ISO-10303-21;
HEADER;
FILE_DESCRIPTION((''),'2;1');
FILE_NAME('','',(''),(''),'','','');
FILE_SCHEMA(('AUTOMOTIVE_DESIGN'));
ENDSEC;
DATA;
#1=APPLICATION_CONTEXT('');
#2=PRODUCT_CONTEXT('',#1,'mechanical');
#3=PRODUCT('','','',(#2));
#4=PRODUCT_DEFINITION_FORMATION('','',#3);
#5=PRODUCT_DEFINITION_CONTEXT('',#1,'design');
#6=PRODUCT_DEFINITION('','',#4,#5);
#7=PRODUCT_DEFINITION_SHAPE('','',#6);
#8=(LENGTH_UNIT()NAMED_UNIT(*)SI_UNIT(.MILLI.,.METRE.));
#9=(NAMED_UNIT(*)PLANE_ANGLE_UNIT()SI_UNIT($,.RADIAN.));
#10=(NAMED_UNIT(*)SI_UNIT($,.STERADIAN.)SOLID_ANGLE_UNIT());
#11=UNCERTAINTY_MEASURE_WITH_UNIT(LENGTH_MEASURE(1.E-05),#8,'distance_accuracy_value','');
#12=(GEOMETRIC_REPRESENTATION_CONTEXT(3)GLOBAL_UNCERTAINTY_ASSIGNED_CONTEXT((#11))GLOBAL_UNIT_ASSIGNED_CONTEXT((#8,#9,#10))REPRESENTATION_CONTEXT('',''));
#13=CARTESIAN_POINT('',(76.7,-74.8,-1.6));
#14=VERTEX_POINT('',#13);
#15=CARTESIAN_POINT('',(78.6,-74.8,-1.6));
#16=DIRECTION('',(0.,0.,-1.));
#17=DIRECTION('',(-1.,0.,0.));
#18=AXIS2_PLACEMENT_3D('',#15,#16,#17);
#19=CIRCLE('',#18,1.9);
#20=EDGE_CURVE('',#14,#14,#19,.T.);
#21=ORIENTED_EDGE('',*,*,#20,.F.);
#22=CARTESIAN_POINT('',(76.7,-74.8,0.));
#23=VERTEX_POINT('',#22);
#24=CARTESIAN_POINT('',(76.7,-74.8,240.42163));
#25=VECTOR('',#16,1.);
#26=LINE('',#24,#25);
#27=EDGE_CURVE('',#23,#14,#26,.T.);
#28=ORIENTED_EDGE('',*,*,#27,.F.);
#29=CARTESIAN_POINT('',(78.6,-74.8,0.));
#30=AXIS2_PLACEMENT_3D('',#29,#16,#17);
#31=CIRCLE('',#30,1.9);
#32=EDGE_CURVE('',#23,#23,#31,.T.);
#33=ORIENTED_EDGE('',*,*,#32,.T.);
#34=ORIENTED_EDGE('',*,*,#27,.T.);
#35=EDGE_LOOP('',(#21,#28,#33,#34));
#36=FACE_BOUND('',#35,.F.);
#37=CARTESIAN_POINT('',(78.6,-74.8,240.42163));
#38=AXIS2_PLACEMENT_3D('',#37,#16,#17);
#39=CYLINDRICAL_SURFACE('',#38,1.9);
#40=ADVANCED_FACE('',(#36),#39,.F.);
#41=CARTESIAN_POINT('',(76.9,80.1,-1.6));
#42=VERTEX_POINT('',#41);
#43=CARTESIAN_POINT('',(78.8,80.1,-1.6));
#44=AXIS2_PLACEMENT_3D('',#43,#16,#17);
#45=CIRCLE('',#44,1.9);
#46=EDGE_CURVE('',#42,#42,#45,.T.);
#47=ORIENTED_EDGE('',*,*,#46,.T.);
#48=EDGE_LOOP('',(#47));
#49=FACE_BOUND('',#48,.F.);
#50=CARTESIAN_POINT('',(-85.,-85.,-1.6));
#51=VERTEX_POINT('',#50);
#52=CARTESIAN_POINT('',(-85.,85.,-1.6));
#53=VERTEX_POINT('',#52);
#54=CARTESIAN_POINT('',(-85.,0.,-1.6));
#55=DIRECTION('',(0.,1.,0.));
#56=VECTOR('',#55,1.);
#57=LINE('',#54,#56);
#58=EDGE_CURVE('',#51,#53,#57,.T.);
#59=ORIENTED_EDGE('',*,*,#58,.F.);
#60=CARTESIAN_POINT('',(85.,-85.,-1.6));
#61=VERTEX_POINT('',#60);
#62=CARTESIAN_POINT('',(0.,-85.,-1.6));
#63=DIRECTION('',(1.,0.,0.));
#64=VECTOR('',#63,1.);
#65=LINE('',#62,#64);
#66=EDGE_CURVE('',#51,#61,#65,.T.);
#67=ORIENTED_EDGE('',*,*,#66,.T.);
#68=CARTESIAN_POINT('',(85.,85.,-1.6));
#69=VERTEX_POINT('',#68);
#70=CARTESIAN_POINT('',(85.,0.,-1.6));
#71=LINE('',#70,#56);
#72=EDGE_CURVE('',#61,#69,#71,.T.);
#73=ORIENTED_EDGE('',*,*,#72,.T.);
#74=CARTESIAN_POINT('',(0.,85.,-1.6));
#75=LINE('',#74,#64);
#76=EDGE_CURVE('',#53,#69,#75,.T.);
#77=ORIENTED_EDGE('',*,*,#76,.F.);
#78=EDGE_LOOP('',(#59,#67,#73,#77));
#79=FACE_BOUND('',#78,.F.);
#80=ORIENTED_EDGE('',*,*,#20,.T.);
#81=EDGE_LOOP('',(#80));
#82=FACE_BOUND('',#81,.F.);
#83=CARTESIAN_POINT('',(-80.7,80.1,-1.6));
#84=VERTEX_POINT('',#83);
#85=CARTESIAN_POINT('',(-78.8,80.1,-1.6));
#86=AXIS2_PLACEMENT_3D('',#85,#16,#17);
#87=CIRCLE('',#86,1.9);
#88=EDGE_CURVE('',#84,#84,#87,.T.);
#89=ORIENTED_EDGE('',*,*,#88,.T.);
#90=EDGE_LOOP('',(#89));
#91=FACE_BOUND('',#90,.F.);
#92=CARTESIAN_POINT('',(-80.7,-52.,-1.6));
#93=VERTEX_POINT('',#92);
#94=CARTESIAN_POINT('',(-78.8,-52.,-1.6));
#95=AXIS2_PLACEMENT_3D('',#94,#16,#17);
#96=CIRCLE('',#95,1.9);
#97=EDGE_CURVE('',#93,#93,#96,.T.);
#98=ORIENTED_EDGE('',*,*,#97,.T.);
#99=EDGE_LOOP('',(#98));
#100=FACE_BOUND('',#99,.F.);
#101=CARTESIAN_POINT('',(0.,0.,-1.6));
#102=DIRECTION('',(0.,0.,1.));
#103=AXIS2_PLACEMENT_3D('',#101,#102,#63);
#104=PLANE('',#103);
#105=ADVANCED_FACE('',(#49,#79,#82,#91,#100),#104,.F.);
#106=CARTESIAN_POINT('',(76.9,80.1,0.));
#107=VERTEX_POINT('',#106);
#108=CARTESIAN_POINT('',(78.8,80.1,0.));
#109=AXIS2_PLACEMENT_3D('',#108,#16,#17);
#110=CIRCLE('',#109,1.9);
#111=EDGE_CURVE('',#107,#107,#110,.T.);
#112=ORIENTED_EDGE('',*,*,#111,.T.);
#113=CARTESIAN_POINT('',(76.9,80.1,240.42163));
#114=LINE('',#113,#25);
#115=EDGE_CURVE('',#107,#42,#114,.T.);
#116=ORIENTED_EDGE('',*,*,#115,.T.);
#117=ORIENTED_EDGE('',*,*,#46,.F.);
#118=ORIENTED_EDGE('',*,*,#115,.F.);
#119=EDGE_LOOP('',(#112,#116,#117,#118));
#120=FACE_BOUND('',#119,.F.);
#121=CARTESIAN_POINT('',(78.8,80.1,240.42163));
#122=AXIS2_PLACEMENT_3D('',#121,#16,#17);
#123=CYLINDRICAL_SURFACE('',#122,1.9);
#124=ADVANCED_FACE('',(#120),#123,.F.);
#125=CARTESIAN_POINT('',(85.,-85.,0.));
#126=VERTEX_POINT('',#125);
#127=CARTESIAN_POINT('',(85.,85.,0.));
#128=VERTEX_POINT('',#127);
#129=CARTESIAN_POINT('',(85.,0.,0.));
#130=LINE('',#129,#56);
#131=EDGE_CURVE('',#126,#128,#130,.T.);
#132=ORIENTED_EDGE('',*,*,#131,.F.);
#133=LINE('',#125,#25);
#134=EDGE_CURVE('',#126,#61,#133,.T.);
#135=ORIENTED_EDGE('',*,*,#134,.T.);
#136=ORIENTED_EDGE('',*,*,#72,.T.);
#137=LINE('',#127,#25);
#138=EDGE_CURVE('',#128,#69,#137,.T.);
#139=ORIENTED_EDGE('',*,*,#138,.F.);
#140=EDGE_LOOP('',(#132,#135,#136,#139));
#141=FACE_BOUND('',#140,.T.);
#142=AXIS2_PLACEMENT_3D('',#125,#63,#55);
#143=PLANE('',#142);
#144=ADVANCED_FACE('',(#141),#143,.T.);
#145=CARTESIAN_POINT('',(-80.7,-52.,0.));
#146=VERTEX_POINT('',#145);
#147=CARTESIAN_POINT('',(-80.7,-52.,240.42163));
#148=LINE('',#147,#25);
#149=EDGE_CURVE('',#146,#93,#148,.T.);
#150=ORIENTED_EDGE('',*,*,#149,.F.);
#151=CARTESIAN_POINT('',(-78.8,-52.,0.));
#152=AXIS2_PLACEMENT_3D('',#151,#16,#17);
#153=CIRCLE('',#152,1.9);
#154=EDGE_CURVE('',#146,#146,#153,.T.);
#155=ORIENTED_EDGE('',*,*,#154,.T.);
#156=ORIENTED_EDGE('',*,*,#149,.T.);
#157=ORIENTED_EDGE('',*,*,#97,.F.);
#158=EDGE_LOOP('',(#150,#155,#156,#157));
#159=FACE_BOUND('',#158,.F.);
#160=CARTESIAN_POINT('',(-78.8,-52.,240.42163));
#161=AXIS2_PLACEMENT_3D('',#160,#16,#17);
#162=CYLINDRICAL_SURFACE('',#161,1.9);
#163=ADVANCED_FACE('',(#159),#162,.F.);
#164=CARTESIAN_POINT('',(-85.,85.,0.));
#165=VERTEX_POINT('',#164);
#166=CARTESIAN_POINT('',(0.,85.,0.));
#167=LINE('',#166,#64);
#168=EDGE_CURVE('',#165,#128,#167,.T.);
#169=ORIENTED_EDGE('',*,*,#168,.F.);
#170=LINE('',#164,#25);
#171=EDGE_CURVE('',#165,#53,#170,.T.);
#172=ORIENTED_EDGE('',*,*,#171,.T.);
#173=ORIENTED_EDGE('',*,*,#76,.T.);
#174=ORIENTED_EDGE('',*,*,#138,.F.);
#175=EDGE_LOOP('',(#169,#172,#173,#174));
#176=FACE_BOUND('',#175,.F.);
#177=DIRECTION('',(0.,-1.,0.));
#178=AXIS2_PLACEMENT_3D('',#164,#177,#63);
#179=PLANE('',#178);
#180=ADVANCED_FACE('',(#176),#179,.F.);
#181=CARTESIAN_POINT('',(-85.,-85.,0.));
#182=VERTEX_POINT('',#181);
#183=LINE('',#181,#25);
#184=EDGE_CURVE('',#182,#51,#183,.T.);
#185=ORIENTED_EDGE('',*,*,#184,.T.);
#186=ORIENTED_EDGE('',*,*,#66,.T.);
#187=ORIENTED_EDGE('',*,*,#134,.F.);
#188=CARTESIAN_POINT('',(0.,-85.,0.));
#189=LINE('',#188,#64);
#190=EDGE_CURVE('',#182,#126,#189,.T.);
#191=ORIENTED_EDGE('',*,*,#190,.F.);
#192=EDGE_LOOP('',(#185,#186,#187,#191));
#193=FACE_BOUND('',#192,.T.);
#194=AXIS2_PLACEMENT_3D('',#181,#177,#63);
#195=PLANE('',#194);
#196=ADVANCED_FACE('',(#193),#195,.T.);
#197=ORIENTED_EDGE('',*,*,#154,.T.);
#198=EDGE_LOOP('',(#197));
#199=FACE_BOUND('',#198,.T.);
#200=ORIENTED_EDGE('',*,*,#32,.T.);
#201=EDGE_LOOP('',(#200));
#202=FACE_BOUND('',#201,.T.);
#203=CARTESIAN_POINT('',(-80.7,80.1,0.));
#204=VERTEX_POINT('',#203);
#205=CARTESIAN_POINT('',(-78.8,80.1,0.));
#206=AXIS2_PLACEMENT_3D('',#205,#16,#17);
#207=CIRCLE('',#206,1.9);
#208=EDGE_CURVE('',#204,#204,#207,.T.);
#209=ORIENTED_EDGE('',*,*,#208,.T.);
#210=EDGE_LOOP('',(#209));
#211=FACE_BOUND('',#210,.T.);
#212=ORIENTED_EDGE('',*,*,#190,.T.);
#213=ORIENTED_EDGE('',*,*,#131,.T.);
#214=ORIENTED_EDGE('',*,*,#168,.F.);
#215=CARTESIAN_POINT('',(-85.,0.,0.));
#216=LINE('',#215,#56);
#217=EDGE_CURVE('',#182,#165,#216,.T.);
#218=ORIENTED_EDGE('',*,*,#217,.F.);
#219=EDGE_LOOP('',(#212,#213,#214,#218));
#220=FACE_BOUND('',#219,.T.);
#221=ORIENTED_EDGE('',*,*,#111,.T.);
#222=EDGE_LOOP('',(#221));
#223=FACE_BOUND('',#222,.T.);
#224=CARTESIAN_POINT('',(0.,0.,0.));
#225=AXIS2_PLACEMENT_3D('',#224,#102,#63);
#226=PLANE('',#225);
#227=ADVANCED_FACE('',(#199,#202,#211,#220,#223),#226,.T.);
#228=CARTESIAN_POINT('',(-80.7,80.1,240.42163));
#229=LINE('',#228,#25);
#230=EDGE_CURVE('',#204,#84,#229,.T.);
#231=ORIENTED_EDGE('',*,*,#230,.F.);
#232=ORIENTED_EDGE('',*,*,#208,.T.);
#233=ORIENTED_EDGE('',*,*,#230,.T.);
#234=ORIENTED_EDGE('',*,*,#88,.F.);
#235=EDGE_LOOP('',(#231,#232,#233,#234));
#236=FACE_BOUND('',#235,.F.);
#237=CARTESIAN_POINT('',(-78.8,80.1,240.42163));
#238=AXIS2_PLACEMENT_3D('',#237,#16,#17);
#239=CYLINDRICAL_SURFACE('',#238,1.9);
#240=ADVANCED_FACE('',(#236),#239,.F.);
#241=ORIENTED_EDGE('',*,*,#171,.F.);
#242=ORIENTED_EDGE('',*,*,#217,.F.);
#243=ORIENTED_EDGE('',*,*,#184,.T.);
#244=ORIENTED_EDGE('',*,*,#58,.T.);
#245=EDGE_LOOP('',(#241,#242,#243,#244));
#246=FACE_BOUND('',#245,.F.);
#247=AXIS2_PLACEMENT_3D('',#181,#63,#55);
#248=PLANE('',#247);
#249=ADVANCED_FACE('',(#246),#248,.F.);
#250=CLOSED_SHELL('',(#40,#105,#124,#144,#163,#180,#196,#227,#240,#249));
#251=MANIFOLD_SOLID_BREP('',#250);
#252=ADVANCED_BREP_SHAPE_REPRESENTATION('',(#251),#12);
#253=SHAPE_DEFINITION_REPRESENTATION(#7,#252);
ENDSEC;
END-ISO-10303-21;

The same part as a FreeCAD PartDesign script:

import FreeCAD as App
import Part
import Sketcher

V = App.Vector
Q = App.Units.Quantity

doc = App.newDocument("Part")
body = doc.addObject("PartDesign::Body", "Body")

# Sketch on XY plane
sketch1 = body.newObject("Sketcher::SketchObject", "Sketch")
sketch1.AttachmentSupport = (doc.getObject("XY_Plane"), [""])
sketch1.MapMode = "FlatFace"
sketch1.addGeometry([
    Part.LineSegment(V(-85, 85, 0), V(-85, -85, 0)),
    Part.LineSegment(V(-85, -85, 0), V(85, -85, 0)),
    Part.LineSegment(V(85, -85, 0), V(85, 85, 0)),
    Part.LineSegment(V(85, 85, 0), V(-85, 85, 0)),
], False)
sketch1.addConstraint([
    Sketcher.Constraint("Coincident", 0, 2, 1, 1),
    Sketcher.Constraint("Coincident", 1, 2, 2, 1),
    Sketcher.Constraint("Coincident", 2, 2, 3, 1),
    Sketcher.Constraint("Coincident", 3, 2, 0, 1),
    Sketcher.Constraint("Vertical", 0),
    Sketcher.Constraint("Horizontal", 1),
    Sketcher.Constraint("Vertical", 2),
    Sketcher.Constraint("Horizontal", 3),
    Sketcher.Constraint("Symmetric", 0, 2, 2, 2, -1, 1),
    Sketcher.Constraint("Equal", 3, 0),
    Sketcher.Constraint("DistanceX", 1, 1, 1, 2, Q("170 mm")),
])
pad1 = body.newObject("PartDesign::Pad", "Pad")
pad1.Profile = sketch1
pad1.Length = 1.6
pad1.Reversed = True

# Sketch on XY plane
sketch2 = body.newObject("Sketcher::SketchObject", "Sketch001")
sketch2.AttachmentSupport = (doc.getObject("XY_Plane"), [""])
sketch2.MapMode = "FlatFace"
sketch2.addGeometry([
    Part.Circle(V(78.8, 80.1, 0), V(0, 0, 1), 1.9),
    Part.Circle(V(78.6, -74.8, 0), V(0, 0, 1), 1.9),
    Part.Circle(V(-78.8, -52, 0), V(0, 0, 1), 1.9),
    Part.Circle(V(-78.8, 80.1, 0), V(0, 0, 1), 1.9),
], False)
sketch2.addConstraint([
    Sketcher.Constraint("Equal", 0, 1),
    Sketcher.Constraint("Equal", 1, 2),
    Sketcher.Constraint("Equal", 2, 3),
    Sketcher.Constraint("Symmetric", 0, 3, 3, 3, -2),
    Sketcher.Constraint("Vertical", 2, 3, 3, 3),
    Sketcher.Constraint("Diameter", 0, Q("3.8 mm")),
    Sketcher.Constraint("DistanceY", 2, 3, -1, 1, Q("52 mm")),
    Sketcher.Constraint("DistanceX", -1, 1, 0, 3, Q("78.8 mm")),
    Sketcher.Constraint("DistanceY", -1, 1, 0, 3, Q("80.1 mm")),
    Sketcher.Constraint("DistanceX", -1, 1, 1, 3, Q("78.6 mm")),
    Sketcher.Constraint("DistanceY", 1, 3, -1, 1, Q("74.8 mm")),
])
doc.recompute()
hole = body.newObject("PartDesign::Hole", "Hole")
hole.Profile = sketch2
hole.ThreadType = "None"
hole.Diameter = 3.8
hole.DepthType = "ThroughAll"

doc.recompute()
